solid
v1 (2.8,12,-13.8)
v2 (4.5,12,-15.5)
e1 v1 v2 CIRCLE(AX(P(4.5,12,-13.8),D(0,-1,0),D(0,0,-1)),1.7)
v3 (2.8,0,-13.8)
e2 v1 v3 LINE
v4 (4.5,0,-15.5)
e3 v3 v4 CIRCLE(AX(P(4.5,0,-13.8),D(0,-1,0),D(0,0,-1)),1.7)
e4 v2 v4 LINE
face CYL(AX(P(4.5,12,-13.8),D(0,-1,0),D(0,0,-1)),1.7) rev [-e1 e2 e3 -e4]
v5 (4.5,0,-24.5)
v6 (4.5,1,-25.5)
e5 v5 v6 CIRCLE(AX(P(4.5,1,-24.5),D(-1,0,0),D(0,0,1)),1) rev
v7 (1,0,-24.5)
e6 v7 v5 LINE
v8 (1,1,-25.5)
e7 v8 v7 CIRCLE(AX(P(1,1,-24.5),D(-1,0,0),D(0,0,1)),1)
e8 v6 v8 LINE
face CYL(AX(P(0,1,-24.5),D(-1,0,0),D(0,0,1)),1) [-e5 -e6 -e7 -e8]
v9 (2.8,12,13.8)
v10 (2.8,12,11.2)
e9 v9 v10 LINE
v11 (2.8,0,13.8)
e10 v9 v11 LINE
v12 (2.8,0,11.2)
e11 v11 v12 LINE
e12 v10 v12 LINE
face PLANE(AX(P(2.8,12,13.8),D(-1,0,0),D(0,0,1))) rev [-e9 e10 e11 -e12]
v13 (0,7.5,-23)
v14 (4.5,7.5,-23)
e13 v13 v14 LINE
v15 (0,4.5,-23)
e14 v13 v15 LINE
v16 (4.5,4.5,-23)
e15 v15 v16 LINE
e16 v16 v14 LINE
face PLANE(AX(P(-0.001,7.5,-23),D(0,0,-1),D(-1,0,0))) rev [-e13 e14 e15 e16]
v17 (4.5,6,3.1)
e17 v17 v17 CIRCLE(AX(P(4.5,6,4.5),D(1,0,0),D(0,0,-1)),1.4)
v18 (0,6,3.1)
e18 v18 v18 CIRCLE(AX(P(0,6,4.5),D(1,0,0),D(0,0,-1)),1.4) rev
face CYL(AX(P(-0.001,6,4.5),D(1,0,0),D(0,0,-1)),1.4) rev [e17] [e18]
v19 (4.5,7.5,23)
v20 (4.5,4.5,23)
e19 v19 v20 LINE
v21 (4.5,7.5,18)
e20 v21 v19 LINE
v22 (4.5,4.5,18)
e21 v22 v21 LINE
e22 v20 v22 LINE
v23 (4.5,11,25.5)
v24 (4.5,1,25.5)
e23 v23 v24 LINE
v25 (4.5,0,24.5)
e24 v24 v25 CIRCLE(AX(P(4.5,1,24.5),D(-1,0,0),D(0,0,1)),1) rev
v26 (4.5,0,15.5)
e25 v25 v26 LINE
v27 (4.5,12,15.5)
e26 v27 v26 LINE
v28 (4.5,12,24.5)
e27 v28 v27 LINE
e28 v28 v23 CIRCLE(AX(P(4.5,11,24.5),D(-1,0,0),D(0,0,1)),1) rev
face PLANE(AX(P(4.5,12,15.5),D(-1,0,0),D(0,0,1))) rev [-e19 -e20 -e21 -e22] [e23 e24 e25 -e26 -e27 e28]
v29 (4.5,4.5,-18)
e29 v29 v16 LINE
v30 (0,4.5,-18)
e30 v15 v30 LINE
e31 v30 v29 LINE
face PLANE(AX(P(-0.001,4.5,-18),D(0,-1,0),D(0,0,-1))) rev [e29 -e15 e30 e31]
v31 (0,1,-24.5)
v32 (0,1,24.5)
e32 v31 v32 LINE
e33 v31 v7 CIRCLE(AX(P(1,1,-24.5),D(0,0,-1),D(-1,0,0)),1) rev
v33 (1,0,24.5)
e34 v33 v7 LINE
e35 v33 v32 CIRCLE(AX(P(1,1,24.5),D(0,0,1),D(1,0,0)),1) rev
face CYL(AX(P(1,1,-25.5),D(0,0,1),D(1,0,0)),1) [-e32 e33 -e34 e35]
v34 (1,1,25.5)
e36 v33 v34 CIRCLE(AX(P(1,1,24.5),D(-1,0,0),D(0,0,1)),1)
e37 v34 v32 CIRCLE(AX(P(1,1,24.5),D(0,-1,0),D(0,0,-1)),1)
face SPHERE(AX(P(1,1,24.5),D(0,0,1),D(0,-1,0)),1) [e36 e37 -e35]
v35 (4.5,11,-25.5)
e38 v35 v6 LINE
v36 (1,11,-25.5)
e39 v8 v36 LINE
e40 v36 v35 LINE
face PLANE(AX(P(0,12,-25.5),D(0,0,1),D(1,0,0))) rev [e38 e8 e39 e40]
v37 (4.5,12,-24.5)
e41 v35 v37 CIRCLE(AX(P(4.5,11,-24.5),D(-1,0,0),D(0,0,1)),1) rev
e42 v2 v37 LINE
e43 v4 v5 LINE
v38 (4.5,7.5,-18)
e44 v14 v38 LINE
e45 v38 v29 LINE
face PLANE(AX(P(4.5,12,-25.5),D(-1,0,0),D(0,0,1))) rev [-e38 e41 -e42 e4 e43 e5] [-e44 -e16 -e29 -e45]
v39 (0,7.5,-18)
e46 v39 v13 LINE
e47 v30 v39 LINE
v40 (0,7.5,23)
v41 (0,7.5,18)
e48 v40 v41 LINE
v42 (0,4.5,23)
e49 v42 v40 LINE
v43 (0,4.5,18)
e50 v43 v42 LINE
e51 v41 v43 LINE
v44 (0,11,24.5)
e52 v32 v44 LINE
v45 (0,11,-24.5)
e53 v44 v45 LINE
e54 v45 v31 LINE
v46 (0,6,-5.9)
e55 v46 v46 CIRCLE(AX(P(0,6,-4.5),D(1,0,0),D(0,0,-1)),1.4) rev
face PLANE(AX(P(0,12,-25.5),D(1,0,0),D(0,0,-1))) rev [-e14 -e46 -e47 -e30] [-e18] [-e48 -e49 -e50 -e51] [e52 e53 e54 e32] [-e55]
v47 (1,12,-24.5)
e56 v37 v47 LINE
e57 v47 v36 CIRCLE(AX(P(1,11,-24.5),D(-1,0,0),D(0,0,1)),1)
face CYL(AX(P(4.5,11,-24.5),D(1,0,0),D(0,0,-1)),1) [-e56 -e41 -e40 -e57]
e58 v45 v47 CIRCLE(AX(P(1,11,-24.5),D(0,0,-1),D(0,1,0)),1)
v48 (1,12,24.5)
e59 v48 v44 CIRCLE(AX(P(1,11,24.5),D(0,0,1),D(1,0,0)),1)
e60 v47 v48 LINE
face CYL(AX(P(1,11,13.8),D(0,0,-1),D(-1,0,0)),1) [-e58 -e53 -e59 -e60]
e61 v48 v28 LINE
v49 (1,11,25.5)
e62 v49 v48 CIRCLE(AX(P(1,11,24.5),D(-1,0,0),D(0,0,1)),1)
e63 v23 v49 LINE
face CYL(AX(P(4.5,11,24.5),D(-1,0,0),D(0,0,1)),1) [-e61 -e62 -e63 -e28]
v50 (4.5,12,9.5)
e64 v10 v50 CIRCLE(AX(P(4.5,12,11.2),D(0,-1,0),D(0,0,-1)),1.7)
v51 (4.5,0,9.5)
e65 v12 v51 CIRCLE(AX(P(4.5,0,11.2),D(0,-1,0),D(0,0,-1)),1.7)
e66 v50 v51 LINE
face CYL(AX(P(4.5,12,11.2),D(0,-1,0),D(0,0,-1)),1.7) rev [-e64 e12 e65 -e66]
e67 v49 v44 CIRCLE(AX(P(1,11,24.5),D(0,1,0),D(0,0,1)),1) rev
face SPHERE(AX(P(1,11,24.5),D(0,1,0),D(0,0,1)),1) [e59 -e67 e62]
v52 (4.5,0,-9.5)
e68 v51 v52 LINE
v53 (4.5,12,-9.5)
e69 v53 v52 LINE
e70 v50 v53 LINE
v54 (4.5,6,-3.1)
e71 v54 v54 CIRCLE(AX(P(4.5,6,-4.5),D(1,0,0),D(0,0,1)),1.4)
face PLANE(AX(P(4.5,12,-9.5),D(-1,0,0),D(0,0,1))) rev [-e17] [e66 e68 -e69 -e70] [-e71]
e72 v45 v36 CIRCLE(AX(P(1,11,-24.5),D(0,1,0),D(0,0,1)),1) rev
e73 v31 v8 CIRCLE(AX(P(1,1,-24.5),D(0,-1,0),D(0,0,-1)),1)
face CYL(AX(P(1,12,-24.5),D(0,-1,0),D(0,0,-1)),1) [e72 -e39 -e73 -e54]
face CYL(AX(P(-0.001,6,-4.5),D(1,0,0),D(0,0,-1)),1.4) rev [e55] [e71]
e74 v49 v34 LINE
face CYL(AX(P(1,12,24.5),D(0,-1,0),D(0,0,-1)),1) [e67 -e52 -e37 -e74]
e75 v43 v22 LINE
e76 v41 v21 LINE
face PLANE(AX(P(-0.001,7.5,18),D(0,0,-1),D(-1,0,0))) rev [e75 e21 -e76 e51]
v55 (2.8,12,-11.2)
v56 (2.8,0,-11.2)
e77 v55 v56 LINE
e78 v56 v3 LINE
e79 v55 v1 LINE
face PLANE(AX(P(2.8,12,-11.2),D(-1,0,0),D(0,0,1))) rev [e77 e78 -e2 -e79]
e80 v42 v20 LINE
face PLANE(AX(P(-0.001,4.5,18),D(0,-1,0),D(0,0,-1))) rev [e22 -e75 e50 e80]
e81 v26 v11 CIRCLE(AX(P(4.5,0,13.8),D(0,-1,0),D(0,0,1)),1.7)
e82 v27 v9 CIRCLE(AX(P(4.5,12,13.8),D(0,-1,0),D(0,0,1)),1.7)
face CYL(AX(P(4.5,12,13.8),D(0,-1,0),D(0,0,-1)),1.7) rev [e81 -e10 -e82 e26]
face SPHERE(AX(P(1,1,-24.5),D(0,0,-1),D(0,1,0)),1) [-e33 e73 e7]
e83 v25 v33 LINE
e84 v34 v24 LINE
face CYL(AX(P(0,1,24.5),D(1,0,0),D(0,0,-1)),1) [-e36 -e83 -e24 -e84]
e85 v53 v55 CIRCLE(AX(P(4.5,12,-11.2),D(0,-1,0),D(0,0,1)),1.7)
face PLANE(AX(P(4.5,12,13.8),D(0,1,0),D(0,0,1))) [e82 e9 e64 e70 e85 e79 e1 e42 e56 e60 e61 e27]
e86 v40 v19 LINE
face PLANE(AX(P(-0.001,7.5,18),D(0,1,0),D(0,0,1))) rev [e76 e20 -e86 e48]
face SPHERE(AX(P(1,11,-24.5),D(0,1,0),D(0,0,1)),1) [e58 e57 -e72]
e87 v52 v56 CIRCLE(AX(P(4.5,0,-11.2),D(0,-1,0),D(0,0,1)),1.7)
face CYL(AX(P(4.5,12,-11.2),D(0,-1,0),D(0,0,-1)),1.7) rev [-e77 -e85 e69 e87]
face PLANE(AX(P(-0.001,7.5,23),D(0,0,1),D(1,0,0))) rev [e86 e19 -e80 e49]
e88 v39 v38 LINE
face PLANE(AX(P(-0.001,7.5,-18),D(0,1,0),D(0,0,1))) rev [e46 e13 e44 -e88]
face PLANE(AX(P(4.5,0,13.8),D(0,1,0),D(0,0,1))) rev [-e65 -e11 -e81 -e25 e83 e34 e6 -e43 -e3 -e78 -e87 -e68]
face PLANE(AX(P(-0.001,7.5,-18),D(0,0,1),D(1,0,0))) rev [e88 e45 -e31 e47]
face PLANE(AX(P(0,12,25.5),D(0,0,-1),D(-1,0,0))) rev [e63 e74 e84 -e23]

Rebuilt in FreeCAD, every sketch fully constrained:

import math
import FreeCAD as App
import Part
import Sketcher

V = App.Vector


def edges_at(feature, points):
    """Names of the edges that pass closest to the given points."""
    edges = feature.Shape.Edges
    near = lambda p: min(range(len(edges)), key=lambda i: edges[i].distToShape(Part.Vertex(*p))[0])
    return sorted({f"Edge{near(p) + 1}" for p in points})

doc = App.newDocument("Part")
body = doc.addObject("PartDesign::Body", "Body")

# Sketch on XZ plane
sketch1 = body.newObject("Sketcher::SketchObject", "Sketch")
sketch1.AttachmentSupport = (doc.getObject("XZ_Plane"), [""])
sketch1.MapMode = "FlatFace"
sketch1.addGeometry(Part.LineSegment(V(4.5, -15.5, 0), V(4.5, -25.5, 0)), False)
sketch1.addGeometry(Part.LineSegment(V(4.5, -25.5, 0), V(0, -25.5, 0)), False)
sketch1.addGeometry(Part.LineSegment(V(0, -25.5, 0), V(0, 25.5, 0)), False)
sketch1.addGeometry(Part.LineSegment(V(0, 25.5, 0), V(4.5, 25.5, 0)), False)
sketch1.addGeometry(Part.LineSegment(V(4.5, 25.5, 0), V(4.5, 15.5, 0)), False)
sketch1.addGeometry(Part.ArcOfCircle(Part.Circle(V(4.5, 13.8, 0), V(0, 0, 1), 1.7), math.radians(90), math.radians(180)), False)
sketch1.addGeometry(Part.LineSegment(V(2.8, 13.8, 0), V(2.8, 11.2, 0)), False)
sketch1.addGeometry(Part.ArcOfCircle(Part.Circle(V(4.5, 11.2, 0), V(0, 0, 1), 1.7), math.radians(180), math.radians(270)), False)
sketch1.addGeometry(Part.LineSegment(V(4.5, 9.5, 0), V(4.5, -9.5, 0)), False)
sketch1.addGeometry(Part.ArcOfCircle(Part.Circle(V(4.5, -11.2, 0), V(0, 0, 1), 1.7), math.radians(90), math.radians(180)), False)
sketch1.addGeometry(Part.LineSegment(V(2.8, -11.2, 0), V(2.8, -13.8, 0)), False)
sketch1.addGeometry(Part.ArcOfCircle(Part.Circle(V(4.5, -13.8, 0), V(0, 0, 1), 1.7), math.radians(180), math.radians(270)), False)
sketch1.addConstraint(Sketcher.Constraint("Coincident", 0, 2, 1, 1))
sketch1.addConstraint(Sketcher.Constraint("Coincident", 1, 2, 2, 1))
sketch1.addConstraint(Sketcher.Constraint("Coincident", 2, 2, 3, 1))
sketch1.addConstraint(Sketcher.Constraint("Coincident", 3, 2, 4, 1))
sketch1.addConstraint(Sketcher.Constraint("Coincident", 4, 2, 5, 1))
sketch1.addConstraint(Sketcher.Constraint("Tangent", 5, 2, 6, 1))
sketch1.addConstraint(Sketcher.Constraint("Tangent", 6, 2, 7, 1))
sketch1.addConstraint(Sketcher.Constraint("Coincident", 7, 2, 8, 1))
sketch1.addConstraint(Sketcher.Constraint("Coincident", 8, 2, 9, 1))
sketch1.addConstraint(Sketcher.Constraint("Tangent", 9, 2, 10, 1))
sketch1.addConstraint(Sketcher.Constraint("Tangent", 10, 2, 11, 1))
sketch1.addConstraint(Sketcher.Constraint("Coincident", 11, 2, 0, 1))
sketch1.addConstraint(Sketcher.Constraint("Vertical", 0))
sketch1.addConstraint(Sketcher.Constraint("Horizontal", 1))
sketch1.addConstraint(Sketcher.Constraint("Vertical", 2))
sketch1.addConstraint(Sketcher.Constraint("Horizontal", 3))
sketch1.addConstraint(Sketcher.Constraint("Vertical", 4))
sketch1.addConstraint(Sketcher.Constraint("Vertical", 6))
sketch1.addConstraint(Sketcher.Constraint("Vertical", 8))
sketch1.addConstraint(Sketcher.Constraint("Vertical", 10))
sketch1.addConstraint(Sketcher.Constraint("Equal", 5, 7))
sketch1.addConstraint(Sketcher.Constraint("Equal", 7, 9))
sketch1.addConstraint(Sketcher.Constraint("Equal", 9, 11))
sketch1.addConstraint(Sketcher.Constraint("Symmetric", 1, 2, 2, 2, -1, 1))
sketch1.addConstraint(Sketcher.Constraint("Symmetric", 7, 3, 9, 3, -1))
sketch1.addConstraint(Sketcher.Constraint("Symmetric", 4, 2, 11, 2, -1))
sketch1.addConstraint(Sketcher.Constraint("Vertical", 11, 3, 0, 2))
sketch1.addConstraint(Sketcher.Constraint("Vertical", 4, 2, 7, 2))
sketch1.addConstraint(Sketcher.Constraint("Radius", 5, 1.7))
sketch1.addConstraint(Sketcher.Constraint("DistanceY", 0, 2, 0, 1, 10.0))
sketch1.addConstraint(Sketcher.Constraint("DistanceY", 2, 1, 2, 2, 51.0))
sketch1.addConstraint(Sketcher.Constraint("DistanceY", 8, 2, 8, 1, 19.0))
sketch1.addConstraint(Sketcher.Constraint("DistanceX", 1, 2, 1, 1, 4.5))
pad1 = body.newObject("PartDesign::Pad", "Pad")
pad1.Profile = sketch1
pad1.Length = 12
pad1.Reversed = True

# Sketch on YZ plane
sketch2 = body.newObject("Sketcher::SketchObject", "Sketch001")
sketch2.AttachmentSupport = (doc.getObject("YZ_Plane"), [""])
sketch2.MapMode = "FlatFace"
sketch2.AttachmentOffset = App.Placement(V(0, 0, 4.5), App.Rotation())
sketch2.addGeometry(Part.Circle(V(6, 4.5, 0), V(0, 0, 1), 1.4), False)
sketch2.addConstraint(Sketcher.Constraint("Diameter", 0, 2.8))
sketch2.addConstraint(Sketcher.Constraint("DistanceX", -1, 1, 0, 3, 6.0))
sketch2.addConstraint(Sketcher.Constraint("DistanceY", -1, 1, 0, 3, 4.5))
pocket1 = body.newObject("PartDesign::Pocket", "Pocket")
pocket1.Profile = sketch2
pocket1.Type = "UpToFirst"

# Sketch on YZ plane
sketch3 = body.newObject("Sketcher::SketchObject", "Sketch002")
sketch3.AttachmentSupport = (doc.getObject("YZ_Plane"), [""])
sketch3.MapMode = "FlatFace"
sketch3.AttachmentOffset = App.Placement(V(0, 0, 4.5), App.Rotation())
sketch3.addGeometry(Part.Circle(V(6, -4.5, 0), V(0, 0, 1), 1.4), False)
sketch3.addConstraint(Sketcher.Constraint("Diameter", 0, 2.8))
sketch3.addConstraint(Sketcher.Constraint("DistanceX", -1, 1, 0, 3, 6.0))
sketch3.addConstraint(Sketcher.Constraint("DistanceY", 0, 3, -1, 1, 4.5))
pocket2 = body.newObject("PartDesign::Pocket", "Pocket001")
pocket2.Profile = sketch3
pocket2.Type = "UpToFirst"

# Sketch on YZ plane
sketch4 = body.newObject("Sketcher::SketchObject", "Sketch003")
sketch4.AttachmentSupport = (doc.getObject("YZ_Plane"), [""])
sketch4.MapMode = "FlatFace"
sketch4.AttachmentOffset = App.Placement(V(0, 0, 4.5), App.Rotation())
sketch4.addGeometry(Part.LineSegment(V(7.5, -18, 0), V(4.5, -18, 0)), False)
sketch4.addGeometry(Part.LineSegment(V(4.5, -18, 0), V(4.5, -23, 0)), False)
sketch4.addGeometry(Part.LineSegment(V(4.5, -23, 0), V(7.5, -23, 0)), False)
sketch4.addGeometry(Part.LineSegment(V(7.5, -23, 0), V(7.5, -18, 0)), False)
sketch4.addConstraint(Sketcher.Constraint("Coincident", 0, 2, 1, 1))
sketch4.addConstraint(Sketcher.Constraint("Coincident", 1, 2, 2, 1))
sketch4.addConstraint(Sketcher.Constraint("Coincident", 2, 2, 3, 1))
sketch4.addConstraint(Sketcher.Constraint("Coincident", 3, 2, 0, 1))
sketch4.addConstraint(Sketcher.Constraint("Horizontal", 0))
sketch4.addConstraint(Sketcher.Constraint("Vertical", 1))
sketch4.addConstraint(Sketcher.Constraint("Horizontal", 2))
sketch4.addConstraint(Sketcher.Constraint("Vertical", 3))
sketch4.addConstraint(Sketcher.Constraint("DistanceX", 0, 2, 0, 1, 3.0))
sketch4.addConstraint(Sketcher.Constraint("DistanceY", 1, 2, 1, 1, 5.0))
sketch4.addConstraint(Sketcher.Constraint("DistanceY", 0, 2, -1, 1, 18.0))
sketch4.addConstraint(Sketcher.Constraint("DistanceX", -1, 1, 0, 2, 4.5))
pocket3 = body.newObject("PartDesign::Pocket", "Pocket002")
pocket3.Profile = sketch4
pocket3.Type = "UpToFirst"

# Sketch on YZ plane
sketch5 = body.newObject("Sketcher::SketchObject", "Sketch004")
sketch5.AttachmentSupport = (doc.getObject("YZ_Plane"), [""])
sketch5.MapMode = "FlatFace"
sketch5.AttachmentOffset = App.Placement(V(0, 0, 4.5), App.Rotation())
sketch5.addGeometry(Part.LineSegment(V(7.5, 23, 0), V(4.5, 23, 0)), False)
sketch5.addGeometry(Part.LineSegment(V(4.5, 23, 0), V(4.5, 18, 0)), False)
sketch5.addGeometry(Part.LineSegment(V(4.5, 18, 0), V(7.5, 18, 0)), False)
sketch5.addGeometry(Part.LineSegment(V(7.5, 18, 0), V(7.5, 23, 0)), False)
sketch5.addConstraint(Sketcher.Constraint("Coincident", 0, 2, 1, 1))
sketch5.addConstraint(Sketcher.Constraint("Coincident", 1, 2, 2, 1))
sketch5.addConstraint(Sketcher.Constraint("Coincident", 2, 2, 3, 1))
sketch5.addConstraint(Sketcher.Constraint("Coincident", 3, 2, 0, 1))
sketch5.addConstraint(Sketcher.Constraint("Horizontal", 0))
sketch5.addConstraint(Sketcher.Constraint("Vertical", 1))
sketch5.addConstraint(Sketcher.Constraint("Horizontal", 2))
sketch5.addConstraint(Sketcher.Constraint("Vertical", 3))
sketch5.addConstraint(Sketcher.Constraint("DistanceX", 0, 2, 0, 1, 3.0))
sketch5.addConstraint(Sketcher.Constraint("DistanceY", 1, 2, 1, 1, 5.0))
sketch5.addConstraint(Sketcher.Constraint("DistanceY", -1, 1, 0, 2, 23.0))
sketch5.addConstraint(Sketcher.Constraint("DistanceX", -1, 1, 0, 2, 4.5))
pocket4 = body.newObject("PartDesign::Pocket", "Pocket003")
pocket4.Profile = sketch5
pocket4.Type = "UpToFirst"
doc.recompute()

fillet = body.newObject("PartDesign::Fillet", "Fillet")
fillet.Base = (pocket4, edges_at(pocket4, [
    (2.25, 0, -25.5),
    (2.25, 0, 25.5),
    (0, 0, 0),
    (0, 6, -25.5),
    (0, 6, 25.5),
    (2.25, 12, -25.5),
    (0, 12, 0),
    (2.25, 12, 25.5),
]))
fillet.Radius = 1

doc.recompute()
